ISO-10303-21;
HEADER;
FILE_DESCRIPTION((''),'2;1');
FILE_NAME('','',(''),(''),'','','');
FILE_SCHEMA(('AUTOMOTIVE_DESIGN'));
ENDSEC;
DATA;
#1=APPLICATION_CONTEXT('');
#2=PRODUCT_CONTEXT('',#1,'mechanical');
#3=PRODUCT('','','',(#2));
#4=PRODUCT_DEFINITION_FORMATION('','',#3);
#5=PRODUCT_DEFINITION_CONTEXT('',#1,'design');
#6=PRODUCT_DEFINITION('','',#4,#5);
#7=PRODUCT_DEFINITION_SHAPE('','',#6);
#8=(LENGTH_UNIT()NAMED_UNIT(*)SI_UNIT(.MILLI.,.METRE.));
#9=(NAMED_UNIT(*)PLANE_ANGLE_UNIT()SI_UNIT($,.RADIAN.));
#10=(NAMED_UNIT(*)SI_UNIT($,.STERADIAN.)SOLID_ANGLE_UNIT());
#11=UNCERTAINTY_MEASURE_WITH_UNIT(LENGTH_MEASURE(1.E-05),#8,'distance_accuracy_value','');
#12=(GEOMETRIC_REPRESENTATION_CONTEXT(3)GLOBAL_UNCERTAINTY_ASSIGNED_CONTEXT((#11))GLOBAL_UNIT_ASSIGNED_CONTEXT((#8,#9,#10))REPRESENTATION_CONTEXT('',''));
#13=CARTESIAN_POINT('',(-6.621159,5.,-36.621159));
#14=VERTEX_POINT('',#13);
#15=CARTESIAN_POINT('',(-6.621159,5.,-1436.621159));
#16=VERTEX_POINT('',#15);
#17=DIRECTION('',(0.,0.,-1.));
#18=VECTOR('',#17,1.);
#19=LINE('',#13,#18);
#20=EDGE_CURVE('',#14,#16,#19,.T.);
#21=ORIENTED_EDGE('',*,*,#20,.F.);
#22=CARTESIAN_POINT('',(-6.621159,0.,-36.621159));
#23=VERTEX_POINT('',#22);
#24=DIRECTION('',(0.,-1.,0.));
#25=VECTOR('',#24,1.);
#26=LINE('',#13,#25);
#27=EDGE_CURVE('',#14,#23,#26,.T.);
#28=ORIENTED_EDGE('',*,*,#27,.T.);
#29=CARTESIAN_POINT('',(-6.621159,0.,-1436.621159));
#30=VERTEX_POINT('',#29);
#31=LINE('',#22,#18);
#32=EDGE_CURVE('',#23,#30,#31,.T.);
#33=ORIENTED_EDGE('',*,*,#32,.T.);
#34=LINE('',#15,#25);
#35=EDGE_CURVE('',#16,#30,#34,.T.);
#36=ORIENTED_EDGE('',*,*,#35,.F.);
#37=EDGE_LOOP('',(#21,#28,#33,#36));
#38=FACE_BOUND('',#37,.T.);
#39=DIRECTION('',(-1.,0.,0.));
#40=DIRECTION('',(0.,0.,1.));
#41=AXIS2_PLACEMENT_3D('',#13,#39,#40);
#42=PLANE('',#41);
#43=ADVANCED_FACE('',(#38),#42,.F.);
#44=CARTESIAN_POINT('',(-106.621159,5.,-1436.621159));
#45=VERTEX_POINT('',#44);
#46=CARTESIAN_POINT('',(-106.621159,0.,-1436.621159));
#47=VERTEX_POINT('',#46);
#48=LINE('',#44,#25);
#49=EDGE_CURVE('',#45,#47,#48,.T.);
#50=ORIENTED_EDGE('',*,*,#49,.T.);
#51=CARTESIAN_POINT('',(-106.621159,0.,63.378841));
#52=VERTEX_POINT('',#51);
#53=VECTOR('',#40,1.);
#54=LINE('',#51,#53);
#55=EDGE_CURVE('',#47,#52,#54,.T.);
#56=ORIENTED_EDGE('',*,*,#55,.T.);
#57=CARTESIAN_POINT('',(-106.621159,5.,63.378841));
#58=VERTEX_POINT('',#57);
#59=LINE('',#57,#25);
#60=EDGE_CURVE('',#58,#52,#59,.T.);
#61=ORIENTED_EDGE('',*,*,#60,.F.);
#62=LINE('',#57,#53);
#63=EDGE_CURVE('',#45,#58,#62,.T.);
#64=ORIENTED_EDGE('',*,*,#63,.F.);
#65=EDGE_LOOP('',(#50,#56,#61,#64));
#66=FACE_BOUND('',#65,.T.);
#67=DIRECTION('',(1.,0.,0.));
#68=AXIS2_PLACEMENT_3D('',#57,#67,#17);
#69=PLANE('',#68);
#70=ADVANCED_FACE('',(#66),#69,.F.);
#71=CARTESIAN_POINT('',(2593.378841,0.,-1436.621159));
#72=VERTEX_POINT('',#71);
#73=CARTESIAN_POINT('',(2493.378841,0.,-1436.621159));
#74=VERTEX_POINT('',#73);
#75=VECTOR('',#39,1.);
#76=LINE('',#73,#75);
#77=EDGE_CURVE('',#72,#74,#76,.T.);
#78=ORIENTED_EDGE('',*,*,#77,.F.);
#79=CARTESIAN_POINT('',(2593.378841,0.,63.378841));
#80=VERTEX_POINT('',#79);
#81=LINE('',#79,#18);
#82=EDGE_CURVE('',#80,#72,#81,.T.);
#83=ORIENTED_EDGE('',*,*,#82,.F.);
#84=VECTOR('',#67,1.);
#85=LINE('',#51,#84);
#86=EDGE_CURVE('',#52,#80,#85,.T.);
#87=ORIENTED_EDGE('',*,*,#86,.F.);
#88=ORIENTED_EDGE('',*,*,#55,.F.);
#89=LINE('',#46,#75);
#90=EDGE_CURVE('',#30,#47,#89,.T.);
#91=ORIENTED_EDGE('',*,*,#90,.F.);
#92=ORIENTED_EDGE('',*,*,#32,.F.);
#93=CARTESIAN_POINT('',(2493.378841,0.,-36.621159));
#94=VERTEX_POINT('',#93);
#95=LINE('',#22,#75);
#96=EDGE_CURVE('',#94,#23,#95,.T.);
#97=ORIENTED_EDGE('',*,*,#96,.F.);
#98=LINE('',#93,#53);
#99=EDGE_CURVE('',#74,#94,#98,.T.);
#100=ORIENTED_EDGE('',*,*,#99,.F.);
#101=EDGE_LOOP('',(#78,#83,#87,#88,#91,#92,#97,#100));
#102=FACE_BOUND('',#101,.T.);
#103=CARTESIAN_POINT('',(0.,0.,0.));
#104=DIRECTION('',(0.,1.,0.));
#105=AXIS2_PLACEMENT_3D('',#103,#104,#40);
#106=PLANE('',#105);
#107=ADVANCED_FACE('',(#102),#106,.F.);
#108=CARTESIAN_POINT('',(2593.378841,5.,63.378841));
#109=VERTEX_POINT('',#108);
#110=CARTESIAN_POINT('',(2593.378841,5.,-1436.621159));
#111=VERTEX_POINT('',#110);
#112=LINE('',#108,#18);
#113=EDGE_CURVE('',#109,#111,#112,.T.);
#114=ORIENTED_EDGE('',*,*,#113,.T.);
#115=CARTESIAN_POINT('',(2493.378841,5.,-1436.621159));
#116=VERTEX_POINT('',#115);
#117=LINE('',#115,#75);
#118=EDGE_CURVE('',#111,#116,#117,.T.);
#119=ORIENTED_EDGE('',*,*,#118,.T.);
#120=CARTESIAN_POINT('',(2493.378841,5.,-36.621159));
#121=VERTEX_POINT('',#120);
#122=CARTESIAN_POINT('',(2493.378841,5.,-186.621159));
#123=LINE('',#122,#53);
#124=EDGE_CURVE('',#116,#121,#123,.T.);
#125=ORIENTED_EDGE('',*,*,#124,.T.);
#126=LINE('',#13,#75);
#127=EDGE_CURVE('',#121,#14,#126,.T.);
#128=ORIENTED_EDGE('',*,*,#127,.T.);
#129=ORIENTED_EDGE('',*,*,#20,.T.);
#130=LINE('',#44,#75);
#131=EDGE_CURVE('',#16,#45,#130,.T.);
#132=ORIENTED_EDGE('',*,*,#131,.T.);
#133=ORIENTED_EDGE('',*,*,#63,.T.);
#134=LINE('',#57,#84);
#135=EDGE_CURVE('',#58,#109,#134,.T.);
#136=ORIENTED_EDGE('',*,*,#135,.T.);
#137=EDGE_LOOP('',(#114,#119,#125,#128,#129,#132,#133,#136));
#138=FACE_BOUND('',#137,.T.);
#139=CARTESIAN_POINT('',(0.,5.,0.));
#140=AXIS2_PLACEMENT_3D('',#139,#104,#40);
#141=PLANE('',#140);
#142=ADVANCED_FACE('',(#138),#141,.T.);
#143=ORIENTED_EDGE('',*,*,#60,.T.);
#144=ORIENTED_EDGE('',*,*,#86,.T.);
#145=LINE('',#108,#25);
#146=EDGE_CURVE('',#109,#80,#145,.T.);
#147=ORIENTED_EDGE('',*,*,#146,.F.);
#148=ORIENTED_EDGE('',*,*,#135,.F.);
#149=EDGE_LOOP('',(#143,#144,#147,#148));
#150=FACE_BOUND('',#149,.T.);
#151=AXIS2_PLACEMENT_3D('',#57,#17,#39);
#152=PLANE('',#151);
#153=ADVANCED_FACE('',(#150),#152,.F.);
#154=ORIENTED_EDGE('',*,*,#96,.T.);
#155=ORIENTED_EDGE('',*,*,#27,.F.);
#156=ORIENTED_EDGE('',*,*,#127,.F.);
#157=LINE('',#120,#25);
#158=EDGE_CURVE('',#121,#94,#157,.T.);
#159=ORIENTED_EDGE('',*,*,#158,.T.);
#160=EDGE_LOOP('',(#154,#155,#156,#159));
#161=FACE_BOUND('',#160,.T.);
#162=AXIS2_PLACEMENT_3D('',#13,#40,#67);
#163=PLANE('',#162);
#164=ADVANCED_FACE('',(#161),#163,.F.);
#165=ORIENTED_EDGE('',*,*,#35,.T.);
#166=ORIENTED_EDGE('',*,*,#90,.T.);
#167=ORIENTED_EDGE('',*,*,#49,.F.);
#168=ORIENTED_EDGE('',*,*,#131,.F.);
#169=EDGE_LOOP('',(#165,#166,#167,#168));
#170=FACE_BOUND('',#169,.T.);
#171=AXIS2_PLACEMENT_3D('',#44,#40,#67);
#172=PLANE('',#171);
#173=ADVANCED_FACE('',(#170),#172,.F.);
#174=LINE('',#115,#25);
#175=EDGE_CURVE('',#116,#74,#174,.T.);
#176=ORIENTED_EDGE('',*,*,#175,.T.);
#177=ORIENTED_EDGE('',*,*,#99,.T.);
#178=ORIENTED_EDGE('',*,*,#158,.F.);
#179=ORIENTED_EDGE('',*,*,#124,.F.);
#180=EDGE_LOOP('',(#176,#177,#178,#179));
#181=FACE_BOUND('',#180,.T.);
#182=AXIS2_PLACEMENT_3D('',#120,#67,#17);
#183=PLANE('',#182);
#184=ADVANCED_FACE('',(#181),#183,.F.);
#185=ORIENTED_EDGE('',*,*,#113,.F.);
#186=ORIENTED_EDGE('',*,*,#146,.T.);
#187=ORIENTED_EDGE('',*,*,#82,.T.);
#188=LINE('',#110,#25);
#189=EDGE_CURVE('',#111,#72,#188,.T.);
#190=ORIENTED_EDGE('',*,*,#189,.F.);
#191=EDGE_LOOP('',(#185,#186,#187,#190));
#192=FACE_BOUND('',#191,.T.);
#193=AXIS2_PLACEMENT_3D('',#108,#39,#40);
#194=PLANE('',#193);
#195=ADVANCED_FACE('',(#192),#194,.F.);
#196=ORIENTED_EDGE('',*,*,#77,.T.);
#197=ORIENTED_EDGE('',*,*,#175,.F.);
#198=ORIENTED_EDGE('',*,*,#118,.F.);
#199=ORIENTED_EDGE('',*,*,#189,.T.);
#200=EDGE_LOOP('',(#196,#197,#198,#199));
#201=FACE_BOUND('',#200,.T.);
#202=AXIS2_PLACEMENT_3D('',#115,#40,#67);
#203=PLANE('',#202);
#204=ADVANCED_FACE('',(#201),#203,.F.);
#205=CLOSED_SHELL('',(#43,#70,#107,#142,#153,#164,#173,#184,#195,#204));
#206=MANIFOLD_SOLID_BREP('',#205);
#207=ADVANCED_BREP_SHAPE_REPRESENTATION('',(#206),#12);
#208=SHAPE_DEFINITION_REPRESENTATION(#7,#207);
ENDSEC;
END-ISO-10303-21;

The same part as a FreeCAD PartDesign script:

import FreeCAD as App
import Part
import Sketcher
from FreeCAD import Vector
Q = App.Units.Quantity


def add_polygon(sketch, points):
    """Adds a closed chain of lines whose ends are joined by coincident constraints."""
    first, n = sketch.GeometryCount, len(points)
    for a, b in zip(points, points[1:] + points[:1]):
        sketch.addGeometry(Part.LineSegment(App.Vector(*a, 0), App.Vector(*b, 0)), False)
    for i in range(n):
        sketch.addConstraint(Sketcher.Constraint("Coincident", first + i, 2, first + (i + 1) % n, 1))

doc = App.newDocument("Part")
body = doc.addObject("PartDesign::Body", "Body")

# Sketch on XZ plane
sketch1 = body.newObject("Sketcher::SketchObject", "Sketch")
sketch1.AttachmentSupport = (doc.getObject("XZ_Plane"), [""])
sketch1.MapMode = "FlatFace"
add_polygon(sketch1, [(-107, 63), (2593, 63), (2593, -1437), (2493, -1437), (2493, -37), (-7, -37), (-7, -1437), (-107, -1437)])  # lines 0-7
sketch1.addConstraint([
    Sketcher.Constraint("Horizontal", 0),
    Sketcher.Constraint("Vertical", 1),
    Sketcher.Constraint("Horizontal", 2),
    Sketcher.Constraint("Vertical", 3),
    Sketcher.Constraint("Horizontal", 4),
    Sketcher.Constraint("Vertical", 5),
    Sketcher.Constraint("Horizontal", 6),
    Sketcher.Constraint("Vertical", 7),
    Sketcher.Constraint("Horizontal", 2, 2, 5, 2),
    Sketcher.Constraint("Equal", 2, 6),
    Sketcher.Constraint("DistanceX", 0, 1, 0, 2, Q("2700 mm")),
    Sketcher.Constraint("DistanceX", 2, 2, 2, 1, Q("100 mm")),
    Sketcher.Constraint("DistanceY", 1, 2, 1, 1, Q("1500 mm")),
    Sketcher.Constraint("DistanceY", 3, 1, 3, 2, Q("1400 mm")),
    Sketcher.Constraint("DistanceX", -1, 1, 0, 2, Q("2593.378841 mm")),
    Sketcher.Constraint("DistanceY", -1, 1, 0, 2, Q("63.378841 mm")),
])
pad1 = body.newObject("PartDesign::Pad", "Pad")
pad1.Profile = sketch1
pad1.Length = 5
pad1.Reversed = True

doc.recompute()
